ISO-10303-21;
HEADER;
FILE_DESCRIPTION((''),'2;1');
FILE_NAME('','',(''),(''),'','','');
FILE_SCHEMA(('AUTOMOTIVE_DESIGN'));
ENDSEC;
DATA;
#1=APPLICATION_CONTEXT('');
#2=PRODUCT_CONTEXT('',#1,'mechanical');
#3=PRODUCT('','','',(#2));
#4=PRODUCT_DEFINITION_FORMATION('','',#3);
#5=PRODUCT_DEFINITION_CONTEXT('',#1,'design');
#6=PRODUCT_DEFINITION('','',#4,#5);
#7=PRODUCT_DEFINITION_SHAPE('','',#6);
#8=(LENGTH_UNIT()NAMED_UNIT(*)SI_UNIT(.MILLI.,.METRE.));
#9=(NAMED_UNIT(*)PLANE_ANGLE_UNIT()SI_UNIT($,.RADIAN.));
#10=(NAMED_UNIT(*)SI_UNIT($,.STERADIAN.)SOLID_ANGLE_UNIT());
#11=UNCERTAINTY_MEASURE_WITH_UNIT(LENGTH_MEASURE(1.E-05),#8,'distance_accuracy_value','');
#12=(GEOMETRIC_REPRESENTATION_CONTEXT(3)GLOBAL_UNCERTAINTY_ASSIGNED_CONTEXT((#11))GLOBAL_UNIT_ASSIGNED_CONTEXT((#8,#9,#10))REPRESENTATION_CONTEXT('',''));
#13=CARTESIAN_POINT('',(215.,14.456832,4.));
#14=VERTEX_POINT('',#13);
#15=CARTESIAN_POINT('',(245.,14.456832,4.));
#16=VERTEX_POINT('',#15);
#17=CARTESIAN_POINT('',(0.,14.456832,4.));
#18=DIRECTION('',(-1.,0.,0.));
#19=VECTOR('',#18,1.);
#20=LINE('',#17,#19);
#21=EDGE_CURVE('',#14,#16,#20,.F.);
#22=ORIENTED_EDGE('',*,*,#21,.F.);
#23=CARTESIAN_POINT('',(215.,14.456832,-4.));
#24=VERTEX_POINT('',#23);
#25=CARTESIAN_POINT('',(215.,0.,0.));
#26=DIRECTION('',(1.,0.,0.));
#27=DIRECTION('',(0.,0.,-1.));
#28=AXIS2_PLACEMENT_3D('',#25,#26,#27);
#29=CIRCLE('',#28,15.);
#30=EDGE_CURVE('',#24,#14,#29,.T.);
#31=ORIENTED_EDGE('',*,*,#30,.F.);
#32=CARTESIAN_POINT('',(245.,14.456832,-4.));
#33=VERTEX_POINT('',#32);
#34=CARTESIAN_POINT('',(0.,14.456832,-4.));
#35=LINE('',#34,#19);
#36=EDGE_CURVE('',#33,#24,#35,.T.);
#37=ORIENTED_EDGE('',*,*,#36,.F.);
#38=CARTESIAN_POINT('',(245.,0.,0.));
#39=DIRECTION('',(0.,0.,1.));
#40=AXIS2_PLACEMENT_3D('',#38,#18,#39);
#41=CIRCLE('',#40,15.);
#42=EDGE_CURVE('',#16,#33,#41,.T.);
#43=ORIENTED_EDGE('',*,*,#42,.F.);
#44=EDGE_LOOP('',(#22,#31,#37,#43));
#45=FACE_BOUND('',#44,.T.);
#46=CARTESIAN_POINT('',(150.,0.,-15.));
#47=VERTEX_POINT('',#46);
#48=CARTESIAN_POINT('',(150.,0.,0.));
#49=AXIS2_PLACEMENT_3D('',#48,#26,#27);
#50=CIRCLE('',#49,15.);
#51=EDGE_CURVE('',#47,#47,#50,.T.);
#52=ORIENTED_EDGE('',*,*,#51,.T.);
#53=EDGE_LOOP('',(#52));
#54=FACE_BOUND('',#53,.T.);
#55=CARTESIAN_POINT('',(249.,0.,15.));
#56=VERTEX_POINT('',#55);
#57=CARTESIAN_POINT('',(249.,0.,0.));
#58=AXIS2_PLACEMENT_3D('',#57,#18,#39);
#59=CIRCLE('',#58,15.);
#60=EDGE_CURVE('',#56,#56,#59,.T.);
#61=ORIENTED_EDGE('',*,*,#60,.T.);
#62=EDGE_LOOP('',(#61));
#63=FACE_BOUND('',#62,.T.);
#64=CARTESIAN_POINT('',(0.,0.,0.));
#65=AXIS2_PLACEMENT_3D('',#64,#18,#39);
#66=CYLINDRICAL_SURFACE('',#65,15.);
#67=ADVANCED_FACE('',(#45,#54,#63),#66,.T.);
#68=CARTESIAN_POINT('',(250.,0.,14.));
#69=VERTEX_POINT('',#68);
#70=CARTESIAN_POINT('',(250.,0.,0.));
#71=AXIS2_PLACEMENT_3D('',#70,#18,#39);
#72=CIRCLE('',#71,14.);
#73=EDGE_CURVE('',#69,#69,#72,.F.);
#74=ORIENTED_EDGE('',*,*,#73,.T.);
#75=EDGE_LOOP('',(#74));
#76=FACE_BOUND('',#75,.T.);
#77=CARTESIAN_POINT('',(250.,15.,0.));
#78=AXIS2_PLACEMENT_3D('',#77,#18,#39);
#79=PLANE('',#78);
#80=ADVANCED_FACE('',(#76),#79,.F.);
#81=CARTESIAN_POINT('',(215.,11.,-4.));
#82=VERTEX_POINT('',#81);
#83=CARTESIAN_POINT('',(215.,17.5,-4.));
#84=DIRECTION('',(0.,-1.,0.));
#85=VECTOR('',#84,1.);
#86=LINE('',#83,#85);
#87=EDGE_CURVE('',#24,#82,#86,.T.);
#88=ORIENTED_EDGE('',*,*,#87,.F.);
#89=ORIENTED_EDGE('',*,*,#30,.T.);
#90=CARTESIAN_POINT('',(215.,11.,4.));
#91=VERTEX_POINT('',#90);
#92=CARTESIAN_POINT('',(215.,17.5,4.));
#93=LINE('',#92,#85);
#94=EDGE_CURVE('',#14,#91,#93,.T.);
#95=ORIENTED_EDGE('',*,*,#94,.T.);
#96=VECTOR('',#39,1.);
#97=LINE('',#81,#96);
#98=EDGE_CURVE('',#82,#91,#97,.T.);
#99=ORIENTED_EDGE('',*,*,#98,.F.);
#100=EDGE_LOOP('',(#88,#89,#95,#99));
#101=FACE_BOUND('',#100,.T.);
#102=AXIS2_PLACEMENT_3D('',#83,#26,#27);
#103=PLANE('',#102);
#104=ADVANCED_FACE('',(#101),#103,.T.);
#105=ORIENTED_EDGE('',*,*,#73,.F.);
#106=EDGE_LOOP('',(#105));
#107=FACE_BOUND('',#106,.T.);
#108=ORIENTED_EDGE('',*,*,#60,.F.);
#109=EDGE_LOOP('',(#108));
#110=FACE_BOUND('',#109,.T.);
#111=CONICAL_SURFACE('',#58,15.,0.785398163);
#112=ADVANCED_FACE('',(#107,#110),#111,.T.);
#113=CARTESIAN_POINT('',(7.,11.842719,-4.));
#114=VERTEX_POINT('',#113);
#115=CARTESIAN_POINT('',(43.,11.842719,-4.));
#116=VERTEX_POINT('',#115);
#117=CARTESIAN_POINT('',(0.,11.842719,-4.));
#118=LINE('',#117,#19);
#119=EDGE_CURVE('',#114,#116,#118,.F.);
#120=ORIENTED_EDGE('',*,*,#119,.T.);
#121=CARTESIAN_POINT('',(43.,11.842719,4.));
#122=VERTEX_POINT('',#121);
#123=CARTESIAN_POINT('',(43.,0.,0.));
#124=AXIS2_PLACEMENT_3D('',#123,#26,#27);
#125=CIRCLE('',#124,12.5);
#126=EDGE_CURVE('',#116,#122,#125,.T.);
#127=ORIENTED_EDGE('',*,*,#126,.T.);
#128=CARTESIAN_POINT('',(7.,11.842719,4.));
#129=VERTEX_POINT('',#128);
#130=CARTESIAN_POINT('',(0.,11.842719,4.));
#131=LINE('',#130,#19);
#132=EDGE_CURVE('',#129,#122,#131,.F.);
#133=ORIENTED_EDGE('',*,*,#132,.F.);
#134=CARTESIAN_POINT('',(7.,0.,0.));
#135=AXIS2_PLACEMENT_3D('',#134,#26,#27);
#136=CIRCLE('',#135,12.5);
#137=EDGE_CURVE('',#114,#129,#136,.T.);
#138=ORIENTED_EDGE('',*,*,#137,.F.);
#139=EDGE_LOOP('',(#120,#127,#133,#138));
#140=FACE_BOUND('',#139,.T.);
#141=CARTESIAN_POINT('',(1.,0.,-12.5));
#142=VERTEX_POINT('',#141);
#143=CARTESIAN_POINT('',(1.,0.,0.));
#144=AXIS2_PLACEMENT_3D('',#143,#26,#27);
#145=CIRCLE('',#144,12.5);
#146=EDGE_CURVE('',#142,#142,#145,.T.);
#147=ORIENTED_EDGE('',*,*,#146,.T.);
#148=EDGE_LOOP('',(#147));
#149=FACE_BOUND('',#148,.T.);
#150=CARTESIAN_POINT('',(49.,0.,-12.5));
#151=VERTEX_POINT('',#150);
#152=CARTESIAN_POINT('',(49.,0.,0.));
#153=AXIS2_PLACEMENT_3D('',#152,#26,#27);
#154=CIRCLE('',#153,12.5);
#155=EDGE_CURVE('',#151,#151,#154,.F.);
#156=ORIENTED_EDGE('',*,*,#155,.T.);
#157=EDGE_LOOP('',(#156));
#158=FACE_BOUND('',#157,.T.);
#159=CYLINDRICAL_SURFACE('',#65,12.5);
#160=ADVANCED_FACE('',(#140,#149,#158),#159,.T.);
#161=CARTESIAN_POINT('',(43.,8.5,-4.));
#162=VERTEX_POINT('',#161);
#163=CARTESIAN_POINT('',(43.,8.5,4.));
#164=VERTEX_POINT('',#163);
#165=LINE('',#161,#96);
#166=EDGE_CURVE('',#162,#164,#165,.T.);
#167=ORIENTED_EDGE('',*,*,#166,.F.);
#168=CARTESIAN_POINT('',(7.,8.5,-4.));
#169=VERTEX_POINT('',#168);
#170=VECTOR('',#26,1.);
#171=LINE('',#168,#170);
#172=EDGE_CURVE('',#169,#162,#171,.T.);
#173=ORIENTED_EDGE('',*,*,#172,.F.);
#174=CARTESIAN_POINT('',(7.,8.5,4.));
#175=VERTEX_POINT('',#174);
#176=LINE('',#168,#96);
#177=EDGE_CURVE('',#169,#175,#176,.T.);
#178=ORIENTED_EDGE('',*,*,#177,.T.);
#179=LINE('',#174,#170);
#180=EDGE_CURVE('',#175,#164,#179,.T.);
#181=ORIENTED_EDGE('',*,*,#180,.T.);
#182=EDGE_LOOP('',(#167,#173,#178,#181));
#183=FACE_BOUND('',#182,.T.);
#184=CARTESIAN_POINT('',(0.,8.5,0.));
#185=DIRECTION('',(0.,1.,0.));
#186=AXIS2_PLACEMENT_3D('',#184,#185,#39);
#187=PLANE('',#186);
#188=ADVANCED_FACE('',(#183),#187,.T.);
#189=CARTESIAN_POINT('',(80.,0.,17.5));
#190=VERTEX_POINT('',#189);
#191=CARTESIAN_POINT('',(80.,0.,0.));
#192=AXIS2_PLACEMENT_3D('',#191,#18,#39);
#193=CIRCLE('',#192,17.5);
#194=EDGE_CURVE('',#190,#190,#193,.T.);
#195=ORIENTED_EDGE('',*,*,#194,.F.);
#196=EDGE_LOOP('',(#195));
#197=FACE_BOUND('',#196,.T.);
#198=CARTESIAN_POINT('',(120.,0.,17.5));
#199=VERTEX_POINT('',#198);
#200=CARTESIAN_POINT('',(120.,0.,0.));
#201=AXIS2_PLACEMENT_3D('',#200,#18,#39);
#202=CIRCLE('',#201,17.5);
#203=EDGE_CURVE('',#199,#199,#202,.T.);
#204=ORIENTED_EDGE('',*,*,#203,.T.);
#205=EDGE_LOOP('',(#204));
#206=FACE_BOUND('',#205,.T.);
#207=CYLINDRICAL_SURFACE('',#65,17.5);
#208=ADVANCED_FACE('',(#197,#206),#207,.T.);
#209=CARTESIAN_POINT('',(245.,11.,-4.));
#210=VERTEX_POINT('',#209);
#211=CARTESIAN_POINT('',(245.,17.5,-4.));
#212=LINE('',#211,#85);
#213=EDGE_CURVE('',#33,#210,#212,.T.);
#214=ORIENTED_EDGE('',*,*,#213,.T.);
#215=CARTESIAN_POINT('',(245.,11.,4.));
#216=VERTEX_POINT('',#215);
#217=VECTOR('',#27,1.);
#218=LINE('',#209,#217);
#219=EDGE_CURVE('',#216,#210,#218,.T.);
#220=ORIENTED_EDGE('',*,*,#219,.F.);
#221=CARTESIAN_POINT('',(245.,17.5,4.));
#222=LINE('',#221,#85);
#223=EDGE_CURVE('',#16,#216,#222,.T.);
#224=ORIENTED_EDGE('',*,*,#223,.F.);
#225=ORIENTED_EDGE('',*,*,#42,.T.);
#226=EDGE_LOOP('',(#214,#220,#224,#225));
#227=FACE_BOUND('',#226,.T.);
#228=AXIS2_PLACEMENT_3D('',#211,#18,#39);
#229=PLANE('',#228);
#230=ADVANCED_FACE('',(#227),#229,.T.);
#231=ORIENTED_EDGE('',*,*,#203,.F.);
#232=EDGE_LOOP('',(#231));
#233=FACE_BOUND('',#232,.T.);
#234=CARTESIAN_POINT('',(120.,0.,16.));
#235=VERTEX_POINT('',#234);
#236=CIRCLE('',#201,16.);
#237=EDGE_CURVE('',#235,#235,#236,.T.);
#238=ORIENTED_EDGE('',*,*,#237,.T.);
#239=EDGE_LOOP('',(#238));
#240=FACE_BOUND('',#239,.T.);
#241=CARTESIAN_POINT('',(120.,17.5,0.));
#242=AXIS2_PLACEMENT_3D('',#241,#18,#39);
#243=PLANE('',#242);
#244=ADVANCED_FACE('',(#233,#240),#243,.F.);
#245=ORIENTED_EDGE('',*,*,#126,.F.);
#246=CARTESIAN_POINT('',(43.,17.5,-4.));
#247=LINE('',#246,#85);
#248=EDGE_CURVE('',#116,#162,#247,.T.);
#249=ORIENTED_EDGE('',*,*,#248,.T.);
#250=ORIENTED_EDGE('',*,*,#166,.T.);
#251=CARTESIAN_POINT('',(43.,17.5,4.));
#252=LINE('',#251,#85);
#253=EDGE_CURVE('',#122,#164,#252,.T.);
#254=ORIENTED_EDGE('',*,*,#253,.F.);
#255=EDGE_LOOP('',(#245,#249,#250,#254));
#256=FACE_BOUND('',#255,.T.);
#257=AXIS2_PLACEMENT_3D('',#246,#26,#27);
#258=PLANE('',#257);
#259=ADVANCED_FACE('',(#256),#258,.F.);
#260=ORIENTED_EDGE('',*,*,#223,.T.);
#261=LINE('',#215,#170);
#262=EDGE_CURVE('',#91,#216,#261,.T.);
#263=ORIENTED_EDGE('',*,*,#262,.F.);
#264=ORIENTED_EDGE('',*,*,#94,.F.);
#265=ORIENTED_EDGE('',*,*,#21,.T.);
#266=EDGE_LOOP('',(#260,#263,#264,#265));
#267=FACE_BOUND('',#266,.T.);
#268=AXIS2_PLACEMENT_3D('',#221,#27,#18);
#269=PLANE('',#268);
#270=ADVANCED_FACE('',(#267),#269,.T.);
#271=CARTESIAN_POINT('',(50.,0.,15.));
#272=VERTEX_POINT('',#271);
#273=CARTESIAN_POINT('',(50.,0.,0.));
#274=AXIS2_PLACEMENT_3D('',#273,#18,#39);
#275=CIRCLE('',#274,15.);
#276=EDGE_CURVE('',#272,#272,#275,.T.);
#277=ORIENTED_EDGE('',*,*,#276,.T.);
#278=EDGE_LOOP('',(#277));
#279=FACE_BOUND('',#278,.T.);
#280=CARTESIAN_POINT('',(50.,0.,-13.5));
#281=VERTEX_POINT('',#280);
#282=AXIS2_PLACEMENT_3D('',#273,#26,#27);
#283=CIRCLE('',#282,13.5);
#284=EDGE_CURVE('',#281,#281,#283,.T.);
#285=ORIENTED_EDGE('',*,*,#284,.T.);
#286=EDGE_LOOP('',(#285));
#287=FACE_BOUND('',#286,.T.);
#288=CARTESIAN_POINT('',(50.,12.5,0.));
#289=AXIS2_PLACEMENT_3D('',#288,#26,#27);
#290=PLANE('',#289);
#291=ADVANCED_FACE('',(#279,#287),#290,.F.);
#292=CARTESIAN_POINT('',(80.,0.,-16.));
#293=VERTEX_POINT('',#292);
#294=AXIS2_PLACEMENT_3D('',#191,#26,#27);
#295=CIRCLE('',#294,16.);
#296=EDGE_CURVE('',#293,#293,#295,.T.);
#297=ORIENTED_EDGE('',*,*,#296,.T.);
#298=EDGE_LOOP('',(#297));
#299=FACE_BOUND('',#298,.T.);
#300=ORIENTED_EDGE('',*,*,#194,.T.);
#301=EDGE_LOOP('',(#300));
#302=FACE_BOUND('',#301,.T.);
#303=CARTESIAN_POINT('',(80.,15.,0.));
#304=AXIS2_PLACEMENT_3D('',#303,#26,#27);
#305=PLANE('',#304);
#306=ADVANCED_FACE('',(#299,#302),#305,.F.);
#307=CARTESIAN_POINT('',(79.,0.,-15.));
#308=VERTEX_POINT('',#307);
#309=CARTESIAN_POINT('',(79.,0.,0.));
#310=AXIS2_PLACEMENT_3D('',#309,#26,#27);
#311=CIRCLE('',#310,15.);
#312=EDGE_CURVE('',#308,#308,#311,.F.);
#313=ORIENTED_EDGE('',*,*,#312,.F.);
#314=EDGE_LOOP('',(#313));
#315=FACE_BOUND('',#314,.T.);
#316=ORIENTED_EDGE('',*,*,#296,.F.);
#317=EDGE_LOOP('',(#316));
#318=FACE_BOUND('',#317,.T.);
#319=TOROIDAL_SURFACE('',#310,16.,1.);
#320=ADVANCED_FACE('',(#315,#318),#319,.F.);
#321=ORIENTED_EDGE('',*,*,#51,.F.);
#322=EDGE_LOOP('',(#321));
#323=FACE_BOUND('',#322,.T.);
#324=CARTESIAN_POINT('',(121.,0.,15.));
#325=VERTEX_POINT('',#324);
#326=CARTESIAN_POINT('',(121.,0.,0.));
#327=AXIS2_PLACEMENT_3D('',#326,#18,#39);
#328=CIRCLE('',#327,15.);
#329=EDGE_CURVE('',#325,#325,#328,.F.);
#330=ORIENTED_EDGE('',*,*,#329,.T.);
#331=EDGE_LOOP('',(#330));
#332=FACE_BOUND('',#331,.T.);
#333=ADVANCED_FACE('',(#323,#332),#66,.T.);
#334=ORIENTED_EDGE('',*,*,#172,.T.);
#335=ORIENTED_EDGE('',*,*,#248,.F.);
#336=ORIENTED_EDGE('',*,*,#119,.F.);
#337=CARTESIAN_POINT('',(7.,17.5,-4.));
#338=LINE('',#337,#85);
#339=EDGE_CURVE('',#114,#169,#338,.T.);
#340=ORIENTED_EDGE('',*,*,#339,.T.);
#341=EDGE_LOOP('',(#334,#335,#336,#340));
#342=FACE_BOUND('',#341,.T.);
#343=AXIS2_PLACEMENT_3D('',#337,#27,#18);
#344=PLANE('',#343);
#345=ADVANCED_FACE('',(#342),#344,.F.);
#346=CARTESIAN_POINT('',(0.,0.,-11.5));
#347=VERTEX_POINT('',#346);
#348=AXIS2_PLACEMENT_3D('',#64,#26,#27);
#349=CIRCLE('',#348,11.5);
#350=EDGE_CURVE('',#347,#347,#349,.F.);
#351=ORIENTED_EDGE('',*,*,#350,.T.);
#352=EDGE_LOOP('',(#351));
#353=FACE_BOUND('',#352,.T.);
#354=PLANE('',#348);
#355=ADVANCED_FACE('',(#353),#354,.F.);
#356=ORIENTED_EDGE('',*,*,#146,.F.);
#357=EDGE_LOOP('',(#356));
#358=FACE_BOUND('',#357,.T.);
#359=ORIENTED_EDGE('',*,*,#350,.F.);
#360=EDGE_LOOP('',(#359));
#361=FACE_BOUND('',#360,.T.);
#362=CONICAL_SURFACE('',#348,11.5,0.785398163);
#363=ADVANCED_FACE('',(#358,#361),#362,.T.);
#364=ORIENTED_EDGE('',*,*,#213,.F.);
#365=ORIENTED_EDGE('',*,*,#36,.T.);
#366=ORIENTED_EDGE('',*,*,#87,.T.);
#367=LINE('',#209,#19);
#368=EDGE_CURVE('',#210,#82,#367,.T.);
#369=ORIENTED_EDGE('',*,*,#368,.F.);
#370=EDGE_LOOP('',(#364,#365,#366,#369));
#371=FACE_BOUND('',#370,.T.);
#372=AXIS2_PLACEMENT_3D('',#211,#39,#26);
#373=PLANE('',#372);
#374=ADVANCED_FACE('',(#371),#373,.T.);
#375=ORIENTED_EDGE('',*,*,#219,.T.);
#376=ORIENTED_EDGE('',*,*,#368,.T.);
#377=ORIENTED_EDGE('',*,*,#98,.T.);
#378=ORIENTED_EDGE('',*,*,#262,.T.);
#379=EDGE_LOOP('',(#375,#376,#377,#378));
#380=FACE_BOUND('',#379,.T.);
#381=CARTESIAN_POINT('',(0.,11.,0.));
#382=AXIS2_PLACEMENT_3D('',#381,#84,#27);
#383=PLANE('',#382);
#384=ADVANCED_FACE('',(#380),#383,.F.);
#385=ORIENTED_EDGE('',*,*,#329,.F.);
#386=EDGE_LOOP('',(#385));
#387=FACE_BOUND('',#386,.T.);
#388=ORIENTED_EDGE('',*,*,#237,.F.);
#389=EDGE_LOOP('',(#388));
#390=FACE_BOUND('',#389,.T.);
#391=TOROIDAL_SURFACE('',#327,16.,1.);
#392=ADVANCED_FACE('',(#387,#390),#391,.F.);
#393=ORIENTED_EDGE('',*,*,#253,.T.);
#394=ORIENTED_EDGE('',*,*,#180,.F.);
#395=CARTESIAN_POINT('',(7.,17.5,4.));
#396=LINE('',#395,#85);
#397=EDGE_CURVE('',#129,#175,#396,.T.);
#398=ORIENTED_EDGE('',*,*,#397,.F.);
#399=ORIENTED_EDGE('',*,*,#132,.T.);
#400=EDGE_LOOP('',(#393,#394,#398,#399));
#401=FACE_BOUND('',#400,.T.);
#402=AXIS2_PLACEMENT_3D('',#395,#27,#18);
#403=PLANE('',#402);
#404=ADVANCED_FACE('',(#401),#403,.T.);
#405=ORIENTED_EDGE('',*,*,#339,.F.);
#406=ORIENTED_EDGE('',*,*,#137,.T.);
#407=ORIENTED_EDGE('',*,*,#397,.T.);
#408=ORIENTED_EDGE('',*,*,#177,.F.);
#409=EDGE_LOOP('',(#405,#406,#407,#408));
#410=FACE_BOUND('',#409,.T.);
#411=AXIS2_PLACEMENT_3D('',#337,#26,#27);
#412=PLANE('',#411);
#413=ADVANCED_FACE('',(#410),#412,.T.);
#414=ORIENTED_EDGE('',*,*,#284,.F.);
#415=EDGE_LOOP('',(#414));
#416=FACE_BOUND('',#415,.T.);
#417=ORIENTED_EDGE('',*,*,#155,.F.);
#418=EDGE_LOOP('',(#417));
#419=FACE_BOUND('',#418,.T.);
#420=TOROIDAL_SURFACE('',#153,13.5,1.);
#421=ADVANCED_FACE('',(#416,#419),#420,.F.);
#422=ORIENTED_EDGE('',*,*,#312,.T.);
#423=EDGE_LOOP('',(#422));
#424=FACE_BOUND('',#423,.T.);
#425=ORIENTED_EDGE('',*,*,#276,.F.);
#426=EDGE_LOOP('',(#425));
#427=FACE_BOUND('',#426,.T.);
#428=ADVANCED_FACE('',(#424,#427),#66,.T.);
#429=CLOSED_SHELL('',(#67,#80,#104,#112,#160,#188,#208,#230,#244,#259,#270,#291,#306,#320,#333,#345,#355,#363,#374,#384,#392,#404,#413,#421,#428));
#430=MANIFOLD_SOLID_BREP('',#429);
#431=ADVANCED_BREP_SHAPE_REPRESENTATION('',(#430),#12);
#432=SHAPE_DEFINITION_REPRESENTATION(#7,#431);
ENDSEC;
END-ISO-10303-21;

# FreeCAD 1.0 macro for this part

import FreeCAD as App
import Part
import Sketcher
Q = App.Units.Quantity


def edges_at(feature, points):
    """Names of the edges that pass closest to the given points."""
    edges = feature.Shape.Edges
    near = lambda p: min(range(len(edges)), key=lambda i: edges[i].distToShape(Part.Vertex(*p))[0])
    return sorted({f"Edge{near(p) + 1}" for p in points})

doc = App.newDocument("Part")
body = doc.addObject("PartDesign::Body", "Body")

# Sketch on XY plane
sketch1 = body.newObject("Sketcher::SketchObject", "Sketch")
sketch1.AttachmentSupport = (doc.getObject("XY_Plane"), [""])
sketch1.MapMode = "FlatFace"
sketch1.addGeometry([
    Part.LineSegment(App.Vector(0, 12.5, 0), App.Vector(0, 0, 0)),  # 0
    Part.LineSegment(App.Vector(0, 0, 0), App.Vector(250, 0, 0)),  # 1
    Part.LineSegment(App.Vector(250, 0, 0), App.Vector(250, 15, 0)),  # 2
    Part.LineSegment(App.Vector(250, 15, 0), App.Vector(120, 15, 0)),  # 3
    Part.LineSegment(App.Vector(120, 15, 0), App.Vector(120, 17.5, 0)),  # 4
    Part.LineSegment(App.Vector(120, 17.5, 0), App.Vector(80, 17.5, 0)),  # 5
    Part.LineSegment(App.Vector(80, 17.5, 0), App.Vector(80, 15, 0)),  # 6
    Part.LineSegment(App.Vector(80, 15, 0), App.Vector(50, 15, 0)),  # 7
    Part.LineSegment(App.Vector(50, 15, 0), App.Vector(50, 12.5, 0)),  # 8
    Part.LineSegment(App.Vector(50, 12.5, 0), App.Vector(0, 12.5, 0)),  # 9
], False)
sketch1.addConstraint([
    Sketcher.Constraint("Coincident", 0, 2, 1, 1),
    Sketcher.Constraint("Coincident", 1, 2, 2, 1),
    Sketcher.Constraint("Coincident", 2, 2, 3, 1),
    Sketcher.Constraint("Coincident", 3, 2, 4, 1),
    Sketcher.Constraint("Coincident", 4, 2, 5, 1),
    Sketcher.Constraint("Coincident", 5, 2, 6, 1),
    Sketcher.Constraint("Coincident", 6, 2, 7, 1),
    Sketcher.Constraint("Coincident", 7, 2, 8, 1),
    Sketcher.Constraint("Coincident", 8, 2, 9, 1),
    Sketcher.Constraint("Coincident", 9, 2, 0, 1),
    Sketcher.Constraint("Vertical", 0),
    Sketcher.Constraint("Horizontal", 1),
    Sketcher.Constraint("Vertical", 2),
    Sketcher.Constraint("Horizontal", 3),
    Sketcher.Constraint("Vertical", 4),
    Sketcher.Constraint("Horizontal", 5),
    Sketcher.Constraint("Vertical", 6),
    Sketcher.Constraint("Horizontal", 7),
    Sketcher.Constraint("Vertical", 8),
    Sketcher.Constraint("Horizontal", 9),
    Sketcher.Constraint("Coincident", 0, 2, -1, 1),
    Sketcher.Constraint("Horizontal", 3, 2, 6, 2),
    Sketcher.Constraint("Equal", 6, 8),
    Sketcher.Constraint("DistanceX", 1, 1, 1, 2, Q("250 mm")),
    Sketcher.Constraint("DistanceX", 3, 2, 3, 1, Q("130 mm")),
    Sketcher.Constraint("DistanceX", 5, 2, 5, 1, Q("40 mm")),
    Sketcher.Constraint("DistanceX", 7, 2, 7, 1, Q("30 mm")),
    Sketcher.Constraint("DistanceY", 2, 1, 2, 2, Q("15 mm")),
    Sketcher.Constraint("DistanceY", 0, 2, 0, 1, Q("12.5 mm")),
])
revolution = body.newObject("PartDesign::Revolution", "Revolution")
revolution.Profile = sketch1
revolution.ReferenceAxis = (sketch1, ["H_Axis"])
revolution.Angle = 360

# Sketch on XZ plane
sketch2 = body.newObject("Sketcher::SketchObject", "Sketch001")
sketch2.AttachmentSupport = (doc.getObject("XZ_Plane"), [""])
sketch2.MapMode = "FlatFace"
sketch2.AttachmentOffset = App.Placement(App.Vector(0, 0, -8.5), App.Rotation())
sketch2.addGeometry([
    Part.LineSegment(App.Vector(7, -4, 0), App.Vector(7, 4, 0)),
    Part.LineSegment(App.Vector(7, 4, 0), App.Vector(43, 4, 0)),
    Part.LineSegment(App.Vector(43, 4, 0), App.Vector(43, -4, 0)),
    Part.LineSegment(App.Vector(43, -4, 0), App.Vector(7, -4, 0)),
], False)
sketch2.addConstraint([
    Sketcher.Constraint("Coincident", 0, 2, 1, 1),
    Sketcher.Constraint("Coincident", 1, 2, 2, 1),
    Sketcher.Constraint("Coincident", 2, 2, 3, 1),
    Sketcher.Constraint("Coincident", 3, 2, 0, 1),
    Sketcher.Constraint("Vertical", 0),
    Sketcher.Constraint("Horizontal", 1),
    Sketcher.Constraint("Vertical", 2),
    Sketcher.Constraint("Horizontal", 3),
    Sketcher.Constraint("DistanceX", 1, 1, 1, 2, Q("36 mm")),
    Sketcher.Constraint("DistanceY", 0, 1, 0, 2, Q("8 mm")),
    Sketcher.Constraint("DistanceX", -1, 1, 0, 2, Q("7 mm")),
    Sketcher.Constraint("DistanceY", -1, 1, 0, 2, Q("4 mm")),
])
pocket1 = body.newObject("PartDesign::Pocket", "Pocket")
pocket1.Profile = sketch2
pocket1.Type = "ThroughAll"

# Sketch on XZ plane
sketch3 = body.newObject("Sketcher::SketchObject", "Sketch002")
sketch3.AttachmentSupport = (doc.getObject("XZ_Plane"), [""])
sketch3.MapMode = "FlatFace"
sketch3.AttachmentOffset = App.Placement(App.Vector(0, 0, -11), App.Rotation())
sketch3.addGeometry([
    Part.LineSegment(App.Vector(215, -4, 0), App.Vector(215, 4, 0)),
    Part.LineSegment(App.Vector(215, 4, 0), App.Vector(245, 4, 0)),
    Part.LineSegment(App.Vector(245, 4, 0), App.Vector(245, -4, 0)),
    Part.LineSegment(App.Vector(245, -4, 0), App.Vector(215, -4, 0)),
], False)
sketch3.addConstraint([
    Sketcher.Constraint("Coincident", 0, 2, 1, 1),
    Sketcher.Constraint("Coincident", 1, 2, 2, 1),
    Sketcher.Constraint("Coincident", 2, 2, 3, 1),
    Sketcher.Constraint("Coincident", 3, 2, 0, 1),
    Sketcher.Constraint("Vertical", 0),
    Sketcher.Constraint("Horizontal", 1),
    Sketcher.Constraint("Vertical", 2),
    Sketcher.Constraint("Horizontal", 3),
    Sketcher.Constraint("DistanceX", 1, 1, 1, 2, Q("30 mm")),
    Sketcher.Constraint("DistanceY", 0, 1, 0, 2, Q("8 mm")),
    Sketcher.Constraint("DistanceX", -1, 1, 0, 2, Q("215 mm")),
    Sketcher.Constraint("DistanceY", -1, 1, 0, 2, Q("4 mm")),
])
pocket2 = body.newObject("PartDesign::Pocket", "Pocket001")
pocket2.Profile = sketch3
pocket2.Type = "ThroughAll"
doc.recompute()

fillet = body.newObject("PartDesign::Fillet", "Fillet")
fillet.Base = (pocket2, edges_at(pocket2, [(80, 0, -15), (50, 0, -12.5), (120, 0, -15)]))
fillet.Radius = 1
doc.recompute()

chamfer = body.newObject("PartDesign::Chamfer", "Chamfer")
chamfer.Base = (fillet, edges_at(fillet, [(0, 0, -12.5), (250, 0, -15)]))
chamfer.Size = 1

doc.recompute()
